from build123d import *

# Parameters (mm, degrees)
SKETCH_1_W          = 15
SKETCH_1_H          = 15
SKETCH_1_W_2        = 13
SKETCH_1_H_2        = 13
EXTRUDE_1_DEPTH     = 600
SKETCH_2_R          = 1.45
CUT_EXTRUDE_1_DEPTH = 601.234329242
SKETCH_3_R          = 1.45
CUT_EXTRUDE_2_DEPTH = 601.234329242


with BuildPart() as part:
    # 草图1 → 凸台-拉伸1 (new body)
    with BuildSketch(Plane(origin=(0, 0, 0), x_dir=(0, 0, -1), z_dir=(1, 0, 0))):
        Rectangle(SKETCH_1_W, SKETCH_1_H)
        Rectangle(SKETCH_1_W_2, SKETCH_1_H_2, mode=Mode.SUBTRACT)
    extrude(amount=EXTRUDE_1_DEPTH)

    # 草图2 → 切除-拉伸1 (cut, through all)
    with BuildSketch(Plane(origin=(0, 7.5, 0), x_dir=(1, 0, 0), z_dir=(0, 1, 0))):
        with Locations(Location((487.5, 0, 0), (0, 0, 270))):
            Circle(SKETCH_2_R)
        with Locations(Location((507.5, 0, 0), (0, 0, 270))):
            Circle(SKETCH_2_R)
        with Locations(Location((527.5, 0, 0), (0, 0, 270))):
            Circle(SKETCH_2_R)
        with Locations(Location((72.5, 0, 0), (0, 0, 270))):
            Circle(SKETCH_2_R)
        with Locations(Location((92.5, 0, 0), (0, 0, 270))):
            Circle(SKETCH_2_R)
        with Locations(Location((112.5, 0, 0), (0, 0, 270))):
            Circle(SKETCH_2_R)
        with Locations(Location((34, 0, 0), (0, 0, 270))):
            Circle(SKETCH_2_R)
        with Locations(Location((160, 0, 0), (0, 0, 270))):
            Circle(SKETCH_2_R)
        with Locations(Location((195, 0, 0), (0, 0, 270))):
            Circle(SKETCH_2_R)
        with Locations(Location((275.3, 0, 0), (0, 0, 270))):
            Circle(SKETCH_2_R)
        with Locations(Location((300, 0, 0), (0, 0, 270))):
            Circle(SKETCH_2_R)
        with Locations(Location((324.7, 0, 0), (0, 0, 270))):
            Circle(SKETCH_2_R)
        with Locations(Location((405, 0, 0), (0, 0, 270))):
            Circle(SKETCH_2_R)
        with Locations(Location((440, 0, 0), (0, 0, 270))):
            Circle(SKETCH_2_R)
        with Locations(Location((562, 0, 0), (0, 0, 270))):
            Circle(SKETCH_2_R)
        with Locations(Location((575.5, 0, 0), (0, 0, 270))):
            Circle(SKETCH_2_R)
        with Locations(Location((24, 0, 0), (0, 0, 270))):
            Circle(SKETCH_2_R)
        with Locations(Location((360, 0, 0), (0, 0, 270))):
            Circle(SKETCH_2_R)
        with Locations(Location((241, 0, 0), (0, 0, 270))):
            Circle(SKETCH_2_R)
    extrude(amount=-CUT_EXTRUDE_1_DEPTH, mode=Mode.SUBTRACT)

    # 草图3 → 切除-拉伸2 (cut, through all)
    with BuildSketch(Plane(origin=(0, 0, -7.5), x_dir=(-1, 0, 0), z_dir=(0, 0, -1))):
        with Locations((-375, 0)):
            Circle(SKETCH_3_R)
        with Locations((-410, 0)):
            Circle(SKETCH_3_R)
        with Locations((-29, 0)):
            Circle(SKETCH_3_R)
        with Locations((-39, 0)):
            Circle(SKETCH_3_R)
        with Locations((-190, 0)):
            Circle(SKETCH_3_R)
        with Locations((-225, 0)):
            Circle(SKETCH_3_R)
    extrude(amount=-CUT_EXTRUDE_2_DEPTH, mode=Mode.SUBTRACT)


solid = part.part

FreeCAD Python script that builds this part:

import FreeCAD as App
import Part
import Sketcher
Q = App.Units.Quantity


def add_polygon(sketch, points):
    """Adds a closed chain of lines whose ends are joined by coincident constraints."""
    first, n = sketch.GeometryCount, len(points)
    for a, b in zip(points, points[1:] + points[:1]):
        sketch.addGeometry(Part.LineSegment(App.Vector(*a, 0), App.Vector(*b, 0)), False)
    for i in range(n):
        sketch.addConstraint(Sketcher.Constraint("Coincident", first + i, 2, first + (i + 1) % n, 1))

doc = App.newDocument("Part")
body = doc.addObject("PartDesign::Body", "Body")

# Sketch on YZ plane
sketch1 = body.newObject("Sketcher::SketchObject", "Sketch")
sketch1.AttachmentSupport = (doc.getObject("YZ_Plane"), [""])
sketch1.MapMode = "FlatFace"
add_polygon(sketch1, [(8, 8), (-8, 8), (-8, -8), (8, -8)])  # lines 0-3
add_polygon(sketch1, [(-6, -6), (-6, 6), (6, 6), (6, -6)])  # lines 4-7
sketch1.addConstraint(Sketcher.Constraint("Horizontal", 0))
sketch1.addConstraint(Sketcher.Constraint("Vertical", 1))
sketch1.addConstraint(Sketcher.Constraint("Horizontal", 2))
sketch1.addConstraint(Sketcher.Constraint("Vertical", 3))
sketch1.addConstraint(Sketcher.Constraint("Vertical", 4))
sketch1.addConstraint(Sketcher.Constraint("Horizontal", 5))
sketch1.addConstraint(Sketcher.Constraint("Vertical", 6))
sketch1.addConstraint(Sketcher.Constraint("Horizontal", 7))
sketch1.addConstraint(Sketcher.Constraint("Symmetric", 0, 2, 2, 2, -1, 1))
sketch1.addConstraint(Sketcher.Constraint("Symmetric", 4, 2, 6, 2, -1, 1))
sketch1.addConstraint(Sketcher.Constraint("Equal", 2, 1))
sketch1.addConstraint(Sketcher.Constraint("Equal", 7, 4))
sketch1.addConstraint(Sketcher.Constraint("DistanceX", 0, 2, 0, 1, Q("15 mm")))
sketch1.addConstraint(Sketcher.Constraint("DistanceX", 5, 1, 5, 2, Q("13 mm")))
pad1 = body.newObject("PartDesign::Pad", "Pad")
pad1.Profile = sketch1
pad1.Length = 600

# Sketch on XZ plane
sketch2 = body.newObject("Sketcher::SketchObject", "Sketch001")
sketch2.AttachmentSupport = (doc.getObject("XZ_Plane"), [""])
sketch2.MapMode = "FlatFace"
sketch2.AttachmentOffset = App.Placement(App.Vector(0, 0, -7.5), App.Rotation())
sketch2.addGeometry(Part.Circle(App.Vector(487.5, 0, 0), App.Vector(0, 0, 1), 1.4), False)
sketch2.addGeometry(Part.Circle(App.Vector(507.5, 0, 0), App.Vector(0, 0, 1), 1.4), False)
sketch2.addGeometry(Part.Circle(App.Vector(527.5, 0, 0), App.Vector(0, 0, 1), 1.4), False)
sketch2.addGeometry(Part.Circle(App.Vector(72.5, 0, 0), App.Vector(0, 0, 1), 1.4), False)
sketch2.addGeometry(Part.Circle(App.Vector(92.5, 0, 0), App.Vector(0, 0, 1), 1.4), False)
sketch2.addGeometry(Part.Circle(App.Vector(112.5, 0, 0), App.Vector(0, 0, 1), 1.4), False)
sketch2.addGeometry(Part.Circle(App.Vector(34, 0, 0), App.Vector(0, 0, 1), 1.4), False)
sketch2.addGeometry(Part.Circle(App.Vector(160, 0, 0), App.Vector(0, 0, 1), 1.4), False)
sketch2.addGeometry(Part.Circle(App.Vector(195, 0, 0), App.Vector(0, 0, 1), 1.4), False)
sketch2.addGeometry(Part.Circle(App.Vector(275.3, 0, 0), App.Vector(0, 0, 1), 1.4), False)
sketch2.addGeometry(Part.Circle(App.Vector(300, 0, 0), App.Vector(0, 0, 1), 1.4), False)
sketch2.addGeometry(Part.Circle(App.Vector(324.7, 0, 0), App.Vector(0, 0, 1), 1.4), False)
sketch2.addGeometry(Part.Circle(App.Vector(405, 0, 0), App.Vector(0, 0, 1), 1.4), False)
sketch2.addGeometry(Part.Circle(App.Vector(440, 0, 0), App.Vector(0, 0, 1), 1.4), False)
sketch2.addGeometry(Part.Circle(App.Vector(562, 0, 0), App.Vector(0, 0, 1), 1.4), False)
sketch2.addGeometry(Part.Circle(App.Vector(575.5, 0, 0), App.Vector(0, 0, 1), 1.4), False)
sketch2.addGeometry(Part.Circle(App.Vector(24, 0, 0), App.Vector(0, 0, 1), 1.4), False)
sketch2.addGeometry(Part.Circle(App.Vector(360, 0, 0), App.Vector(0, 0, 1), 1.4), False)
sketch2.addGeometry(Part.Circle(App.Vector(241, 0, 0), App.Vector(0, 0, 1), 1.4), False)
sketch2.addConstraint(Sketcher.Constraint("Equal", 0, 1))
sketch2.addConstraint(Sketcher.Constraint("Equal", 1, 2))
sketch2.addConstraint(Sketcher.Constraint("Equal", 2, 3))
sketch2.addConstraint(Sketcher.Constraint("Equal", 3, 4))
sketch2.addConstraint(Sketcher.Constraint("Equal", 4, 5))
sketch2.addConstraint(Sketcher.Constraint("Equal", 5, 6))
sketch2.addConstraint(Sketcher.Constraint("Equal", 6, 7))
sketch2.addConstraint(Sketcher.Constraint("Equal", 7, 8))
sketch2.addConstraint(Sketcher.Constraint("Equal", 8, 9))
sketch2.addConstraint(Sketcher.Constraint("Equal", 9, 10))
sketch2.addConstraint(Sketcher.Constraint("Equal", 10, 11))
sketch2.addConstraint(Sketcher.Constraint("Equal", 11, 12))
sketch2.addConstraint(Sketcher.Constraint("Equal", 12, 13))
sketch2.addConstraint(Sketcher.Constraint("Equal", 13, 14))
sketch2.addConstraint(Sketcher.Constraint("Equal", 14, 15))
sketch2.addConstraint(Sketcher.Constraint("Equal", 15, 16))
sketch2.addConstraint(Sketcher.Constraint("Equal", 16, 17))
sketch2.addConstraint(Sketcher.Constraint("Equal", 17, 18))
sketch2.addConstraint(Sketcher.Constraint("PointOnObject", 0, 3, -1))
sketch2.addConstraint(Sketcher.Constraint("PointOnObject", 1, 3, -1))
sketch2.addConstraint(Sketcher.Constraint("PointOnObject", 2, 3, -1))
sketch2.addConstraint(Sketcher.Constraint("PointOnObject", 3, 3, -1))
sketch2.addConstraint(Sketcher.Constraint("PointOnObject", 4, 3, -1))
sketch2.addConstraint(Sketcher.Constraint("PointOnObject", 5, 3, -1))
sketch2.addConstraint(Sketcher.Constraint("PointOnObject", 6, 3, -1))
sketch2.addConstraint(Sketcher.Constraint("PointOnObject", 7, 3, -1))
sketch2.addConstraint(Sketcher.Constraint("PointOnObject", 8, 3, -1))
sketch2.addConstraint(Sketcher.Constraint("PointOnObject", 9, 3, -1))
sketch2.addConstraint(Sketcher.Constraint("PointOnObject", 10, 3, -1))
sketch2.addConstraint(Sketcher.Constraint("PointOnObject", 11, 3, -1))
sketch2.addConstraint(Sketcher.Constraint("PointOnObject", 12, 3, -1))
sketch2.addConstraint(Sketcher.Constraint("PointOnObject", 13, 3, -1))
sketch2.addConstraint(Sketcher.Constraint("PointOnObject", 14, 3, -1))
sketch2.addConstraint(Sketcher.Constraint("PointOnObject", 15, 3, -1))
sketch2.addConstraint(Sketcher.Constraint("PointOnObject", 16, 3, -1))
sketch2.addConstraint(Sketcher.Constraint("PointOnObject", 17, 3, -1))
sketch2.addConstraint(Sketcher.Constraint("PointOnObject", 18, 3, -1))
sketch2.addConstraint(Sketcher.Constraint("Diameter", 0, Q("2.9 mm")))
sketch2.addConstraint(Sketcher.Constraint("DistanceX", -1, 1, 6, 3, Q("34 mm")))
sketch2.addConstraint(Sketcher.Constraint("DistanceX", -1, 1, 7, 3, Q("160 mm")))
sketch2.addConstraint(Sketcher.Constraint("DistanceX", -1, 1, 8, 3, Q("195 mm")))
sketch2.addConstraint(Sketcher.Constraint("DistanceX", -1, 1, 10, 3, Q("300 mm")))
sketch2.addConstraint(Sketcher.Constraint("DistanceX", -1, 1, 12, 3, Q("405 mm")))
sketch2.addConstraint(Sketcher.Constraint("DistanceX", -1, 1, 13, 3, Q("440 mm")))
sketch2.addConstraint(Sketcher.Constraint("DistanceX", -1, 1, 14, 3, Q("562 mm")))
sketch2.addConstraint(Sketcher.Constraint("DistanceX", -1, 1, 16, 3, Q("24 mm")))
sketch2.addConstraint(Sketcher.Constraint("DistanceX", -1, 1, 17, 3, Q("360 mm")))
sketch2.addConstraint(Sketcher.Constraint("DistanceX", -1, 1, 18, 3, Q("241 mm")))
sketch2.addConstraint(Sketcher.Constraint("DistanceX", 0, 3, 1, 3, Q("20 mm")))
sketch2.addConstraint(Sketcher.Constraint("DistanceX", 1, 3, 2, 3, Q("20 mm")))
sketch2.addConstraint(Sketcher.Constraint("DistanceX", 3, 3, 0, 3, Q("415 mm")))
sketch2.addConstraint(Sketcher.Constraint("DistanceX", 3, 3, 4, 3, Q("20 mm")))
sketch2.addConstraint(Sketcher.Constraint("DistanceX", 4, 3, 5, 3, Q("20 mm")))
sketch2.addConstraint(Sketcher.Constraint("DistanceX", 2, 3, 15, 3, Q("48 mm")))
sketch2.addConstraint(Sketcher.Constraint("DistanceX", -1, 1, 0, 3, Q("487.5 mm")))
sketch2.addConstraint(Sketcher.Constraint("DistanceX", -1, 1, 9, 3, Q("275.3 mm")))
sketch2.addConstraint(Sketcher.Constraint("DistanceX", -1, 1, 11, 3, Q("324.7 mm")))
pocket1 = body.newObject("PartDesign::Pocket", "Pocket")
pocket1.Profile = sketch2
pocket1.Type = "ThroughAll"
pocket1.Reversed = True

# Sketch on XY plane
sketch3 = body.newObject("Sketcher::SketchObject", "Sketch002")
sketch3.AttachmentSupport = (doc.getObject("XY_Plane"), [""])
sketch3.MapMode = "FlatFace"
sketch3.AttachmentOffset = App.Placement(App.Vector(0, 0, -7.5), App.Rotation())
sketch3.addGeometry(Part.Circle(App.Vector(375, 0, 0), App.Vector(0, 0, 1), 1.4), False)
sketch3.addGeometry(Part.Circle(App.Vector(410, 0, 0), App.Vector(0, 0, 1), 1.4), False)
sketch3.addGeometry(Part.Circle(App.Vector(29, 0, 0), App.Vector(0, 0, 1), 1.4), False)
sketch3.addGeometry(Part.Circle(App.Vector(39, 0, 0), App.Vector(0, 0, 1), 1.4), False)
sketch3.addGeometry(Part.Circle(App.Vector(190, 0, 0), App.Vector(0, 0, 1), 1.4), False)
sketch3.addGeometry(Part.Circle(App.Vector(225, 0, 0), App.Vector(0, 0, 1), 1.4), False)
sketch3.addConstraint(Sketcher.Constraint("Equal", 0, 1))
sketch3.addConstraint(Sketcher.Constraint("Equal", 1, 2))
sketch3.addConstraint(Sketcher.Constraint("Equal", 2, 3))
sketch3.addConstraint(Sketcher.Constraint("Equal", 3, 4))
sketch3.addConstraint(Sketcher.Constraint("Equal", 4, 5))
sketch3.addConstraint(Sketcher.Constraint("PointOnObject", 0, 3, -1))
sketch3.addConstraint(Sketcher.Constraint("PointOnObject", 1, 3, -1))
sketch3.addConstraint(Sketcher.Constraint("PointOnObject", 2, 3, -1))
sketch3.addConstraint(Sketcher.Constraint("PointOnObject", 3, 3, -1))
sketch3.addConstraint(Sketcher.Constraint("PointOnObject", 4, 3, -1))
sketch3.addConstraint(Sketcher.Constraint("PointOnObject", 5, 3, -1))
sketch3.addConstraint(Sketcher.Constraint("Diameter", 0, Q("2.9 mm")))
sketch3.addConstraint(Sketcher.Constraint("DistanceX", -1, 1, 0, 3, Q("375 mm")))
sketch3.addConstraint(Sketcher.Constraint("DistanceX", -1, 1, 1, 3, Q("410 mm")))
sketch3.addConstraint(Sketcher.Constraint("DistanceX", -1, 1, 2, 3, Q("29 mm")))
sketch3.addConstraint(Sketcher.Constraint("DistanceX", -1, 1, 3, 3, Q("39 mm")))
sketch3.addConstraint(Sketcher.Constraint("DistanceX", -1, 1, 4, 3, Q("190 mm")))
sketch3.addConstraint(Sketcher.Constraint("DistanceX", -1, 1, 5, 3, Q("225 mm")))
pocket2 = body.newObject("PartDesign::Pocket", "Pocket001")
pocket2.Profile = sketch3
pocket2.Type = "ThroughAll"
pocket2.Reversed = True

doc.recompute()
